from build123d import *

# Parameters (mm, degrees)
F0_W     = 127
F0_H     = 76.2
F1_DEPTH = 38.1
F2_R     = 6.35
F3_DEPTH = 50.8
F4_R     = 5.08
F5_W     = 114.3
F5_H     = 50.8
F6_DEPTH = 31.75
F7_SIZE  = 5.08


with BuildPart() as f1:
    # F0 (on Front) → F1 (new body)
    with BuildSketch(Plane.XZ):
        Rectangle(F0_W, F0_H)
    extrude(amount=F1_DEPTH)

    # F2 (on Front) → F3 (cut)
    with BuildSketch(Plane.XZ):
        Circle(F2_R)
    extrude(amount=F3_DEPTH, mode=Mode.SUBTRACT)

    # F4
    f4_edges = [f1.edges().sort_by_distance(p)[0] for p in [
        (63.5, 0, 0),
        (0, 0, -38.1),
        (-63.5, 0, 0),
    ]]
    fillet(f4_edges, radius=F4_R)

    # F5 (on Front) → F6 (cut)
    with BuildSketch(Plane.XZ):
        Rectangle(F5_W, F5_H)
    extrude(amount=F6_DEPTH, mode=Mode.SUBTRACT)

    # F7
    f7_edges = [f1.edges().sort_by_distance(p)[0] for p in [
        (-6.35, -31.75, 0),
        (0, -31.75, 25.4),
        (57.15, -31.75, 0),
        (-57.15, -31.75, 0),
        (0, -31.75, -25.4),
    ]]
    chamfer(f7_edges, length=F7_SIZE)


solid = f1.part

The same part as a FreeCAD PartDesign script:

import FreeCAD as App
import Part
import Sketcher

V = App.Vector
Q = App.Units.Quantity


def edges_at(feature, points):
    """Names of the edges that pass closest to the given points."""
    edges = feature.Shape.Edges
    near = lambda p: min(range(len(edges)), key=lambda i: edges[i].distToShape(Part.Vertex(*p))[0])
    return sorted({f"Edge{near(p) + 1}" for p in points})

doc = App.newDocument("Part")
body = doc.addObject("PartDesign::Body", "Body")

# Sketch on XZ plane
sketch1 = body.newObject("Sketcher::SketchObject", "Sketch")
sketch1.AttachmentSupport = (doc.getObject("XZ_Plane"), [""])
sketch1.MapMode = "FlatFace"
sketch1.addGeometry(Part.LineSegment(V(-64, 38, 0), V(-64, -38, 0)), False)
sketch1.addGeometry(Part.LineSegment(V(-64, -38, 0), V(64, -38, 0)), False)
sketch1.addGeometry(Part.LineSegment(V(64, -38, 0), V(64, 38, 0)), False)
sketch1.addGeometry(Part.LineSegment(V(64, 38, 0), V(-64, 38, 0)), False)
sketch1.addConstraint(Sketcher.Constraint("Coincident", 0, 2, 1, 1))
sketch1.addConstraint(Sketcher.Constraint("Coincident", 1, 2, 2, 1))
sketch1.addConstraint(Sketcher.Constraint("Coincident", 2, 2, 3, 1))
sketch1.addConstraint(Sketcher.Constraint("Coincident", 3, 2, 0, 1))
sketch1.addConstraint(Sketcher.Constraint("Vertical", 0))
sketch1.addConstraint(Sketcher.Constraint("Horizontal", 1))
sketch1.addConstraint(Sketcher.Constraint("Vertical", 2))
sketch1.addConstraint(Sketcher.Constraint("Horizontal", 3))
sketch1.addConstraint(Sketcher.Constraint("Symmetric", 0, 2, 2, 2, -1, 1))
sketch1.addConstraint(Sketcher.Constraint("DistanceX", 1, 1, 1, 2, Q("5 in")))
sketch1.addConstraint(Sketcher.Constraint("DistanceY", 0, 2, 0, 1, Q("3 in")))
pad1 = body.newObject("PartDesign::Pad", "Pad")
pad1.Profile = sketch1
pad1.Length = Q("1.5 in")

# Sketch on XZ plane
sketch2 = body.newObject("Sketcher::SketchObject", "Sketch001")
sketch2.AttachmentSupport = (doc.getObject("XZ_Plane"), [""])
sketch2.MapMode = "FlatFace"
sketch2.addGeometry(Part.Circle(V(0, 0, 0), V(0, 0, 1), 6), False)
sketch2.addConstraint(Sketcher.Constraint("Coincident", 0, 3, -1, 1))
sketch2.addConstraint(Sketcher.Constraint("Diameter", 0, Q("0.5 in")))
pocket1 = body.newObject("PartDesign::Pocket", "Pocket")
pocket1.Profile = sketch2
pocket1.Length = Q("2 in")
pocket1.Reversed = True
doc.recompute()

fillet = body.newObject("PartDesign::Fillet", "Fillet")
fillet.Base = (pocket1, edges_at(pocket1, [(63.5, 0, 0), (0, 0, -38.1), (-63.5, 0, 0)]))
fillet.Radius = Q("0.2 in")

# Sketch on XZ plane
sketch3 = body.newObject("Sketcher::SketchObject", "Sketch002")
sketch3.AttachmentSupport = (doc.getObject("XZ_Plane"), [""])
sketch3.MapMode = "FlatFace"
sketch3.addGeometry(Part.LineSegment(V(-57, 25, 0), V(-57, -25, 0)), False)
sketch3.addGeometry(Part.LineSegment(V(-57, -25, 0), V(57, -25, 0)), False)
sketch3.addGeometry(Part.LineSegment(V(57, -25, 0), V(57, 25, 0)), False)
sketch3.addGeometry(Part.LineSegment(V(57, 25, 0), V(-57, 25, 0)), False)
sketch3.addConstraint(Sketcher.Constraint("Coincident", 0, 2, 1, 1))
sketch3.addConstraint(Sketcher.Constraint("Coincident", 1, 2, 2, 1))
sketch3.addConstraint(Sketcher.Constraint("Coincident", 2, 2, 3, 1))
sketch3.addConstraint(Sketcher.Constraint("Coincident", 3, 2, 0, 1))
sketch3.addConstraint(Sketcher.Constraint("Vertical", 0))
sketch3.addConstraint(Sketcher.Constraint("Horizontal", 1))
sketch3.addConstraint(Sketcher.Constraint("Vertical", 2))
sketch3.addConstraint(Sketcher.Constraint("Horizontal", 3))
sketch3.addConstraint(Sketcher.Constraint("Symmetric", 0, 2, 2, 2, -1, 1))
sketch3.addConstraint(Sketcher.Constraint("DistanceY", 0, 2, 0, 1, Q("2 in")))
sketch3.addConstraint(Sketcher.Constraint("DistanceX", 1, 1, 1, 2, Q("4.5 in")))
pocket2 = body.newObject("PartDesign::Pocket", "Pocket001")
pocket2.Profile = sketch3
pocket2.Length = Q("1.25 in")
pocket2.Reversed = True
doc.recompute()

chamfer = body.newObject("PartDesign::Chamfer", "Chamfer")
chamfer.Base = (pocket2, edges_at(pocket2, [
    (-6.35, -31.75, 0),
    (0, -31.75, 25.4),
    (57.15, -31.75, 0),
    (-57.15, -31.75, 0),
    (0, -31.75, -25.4),
]))
chamfer.Size = Q("0.2 in")

doc.recompute()
